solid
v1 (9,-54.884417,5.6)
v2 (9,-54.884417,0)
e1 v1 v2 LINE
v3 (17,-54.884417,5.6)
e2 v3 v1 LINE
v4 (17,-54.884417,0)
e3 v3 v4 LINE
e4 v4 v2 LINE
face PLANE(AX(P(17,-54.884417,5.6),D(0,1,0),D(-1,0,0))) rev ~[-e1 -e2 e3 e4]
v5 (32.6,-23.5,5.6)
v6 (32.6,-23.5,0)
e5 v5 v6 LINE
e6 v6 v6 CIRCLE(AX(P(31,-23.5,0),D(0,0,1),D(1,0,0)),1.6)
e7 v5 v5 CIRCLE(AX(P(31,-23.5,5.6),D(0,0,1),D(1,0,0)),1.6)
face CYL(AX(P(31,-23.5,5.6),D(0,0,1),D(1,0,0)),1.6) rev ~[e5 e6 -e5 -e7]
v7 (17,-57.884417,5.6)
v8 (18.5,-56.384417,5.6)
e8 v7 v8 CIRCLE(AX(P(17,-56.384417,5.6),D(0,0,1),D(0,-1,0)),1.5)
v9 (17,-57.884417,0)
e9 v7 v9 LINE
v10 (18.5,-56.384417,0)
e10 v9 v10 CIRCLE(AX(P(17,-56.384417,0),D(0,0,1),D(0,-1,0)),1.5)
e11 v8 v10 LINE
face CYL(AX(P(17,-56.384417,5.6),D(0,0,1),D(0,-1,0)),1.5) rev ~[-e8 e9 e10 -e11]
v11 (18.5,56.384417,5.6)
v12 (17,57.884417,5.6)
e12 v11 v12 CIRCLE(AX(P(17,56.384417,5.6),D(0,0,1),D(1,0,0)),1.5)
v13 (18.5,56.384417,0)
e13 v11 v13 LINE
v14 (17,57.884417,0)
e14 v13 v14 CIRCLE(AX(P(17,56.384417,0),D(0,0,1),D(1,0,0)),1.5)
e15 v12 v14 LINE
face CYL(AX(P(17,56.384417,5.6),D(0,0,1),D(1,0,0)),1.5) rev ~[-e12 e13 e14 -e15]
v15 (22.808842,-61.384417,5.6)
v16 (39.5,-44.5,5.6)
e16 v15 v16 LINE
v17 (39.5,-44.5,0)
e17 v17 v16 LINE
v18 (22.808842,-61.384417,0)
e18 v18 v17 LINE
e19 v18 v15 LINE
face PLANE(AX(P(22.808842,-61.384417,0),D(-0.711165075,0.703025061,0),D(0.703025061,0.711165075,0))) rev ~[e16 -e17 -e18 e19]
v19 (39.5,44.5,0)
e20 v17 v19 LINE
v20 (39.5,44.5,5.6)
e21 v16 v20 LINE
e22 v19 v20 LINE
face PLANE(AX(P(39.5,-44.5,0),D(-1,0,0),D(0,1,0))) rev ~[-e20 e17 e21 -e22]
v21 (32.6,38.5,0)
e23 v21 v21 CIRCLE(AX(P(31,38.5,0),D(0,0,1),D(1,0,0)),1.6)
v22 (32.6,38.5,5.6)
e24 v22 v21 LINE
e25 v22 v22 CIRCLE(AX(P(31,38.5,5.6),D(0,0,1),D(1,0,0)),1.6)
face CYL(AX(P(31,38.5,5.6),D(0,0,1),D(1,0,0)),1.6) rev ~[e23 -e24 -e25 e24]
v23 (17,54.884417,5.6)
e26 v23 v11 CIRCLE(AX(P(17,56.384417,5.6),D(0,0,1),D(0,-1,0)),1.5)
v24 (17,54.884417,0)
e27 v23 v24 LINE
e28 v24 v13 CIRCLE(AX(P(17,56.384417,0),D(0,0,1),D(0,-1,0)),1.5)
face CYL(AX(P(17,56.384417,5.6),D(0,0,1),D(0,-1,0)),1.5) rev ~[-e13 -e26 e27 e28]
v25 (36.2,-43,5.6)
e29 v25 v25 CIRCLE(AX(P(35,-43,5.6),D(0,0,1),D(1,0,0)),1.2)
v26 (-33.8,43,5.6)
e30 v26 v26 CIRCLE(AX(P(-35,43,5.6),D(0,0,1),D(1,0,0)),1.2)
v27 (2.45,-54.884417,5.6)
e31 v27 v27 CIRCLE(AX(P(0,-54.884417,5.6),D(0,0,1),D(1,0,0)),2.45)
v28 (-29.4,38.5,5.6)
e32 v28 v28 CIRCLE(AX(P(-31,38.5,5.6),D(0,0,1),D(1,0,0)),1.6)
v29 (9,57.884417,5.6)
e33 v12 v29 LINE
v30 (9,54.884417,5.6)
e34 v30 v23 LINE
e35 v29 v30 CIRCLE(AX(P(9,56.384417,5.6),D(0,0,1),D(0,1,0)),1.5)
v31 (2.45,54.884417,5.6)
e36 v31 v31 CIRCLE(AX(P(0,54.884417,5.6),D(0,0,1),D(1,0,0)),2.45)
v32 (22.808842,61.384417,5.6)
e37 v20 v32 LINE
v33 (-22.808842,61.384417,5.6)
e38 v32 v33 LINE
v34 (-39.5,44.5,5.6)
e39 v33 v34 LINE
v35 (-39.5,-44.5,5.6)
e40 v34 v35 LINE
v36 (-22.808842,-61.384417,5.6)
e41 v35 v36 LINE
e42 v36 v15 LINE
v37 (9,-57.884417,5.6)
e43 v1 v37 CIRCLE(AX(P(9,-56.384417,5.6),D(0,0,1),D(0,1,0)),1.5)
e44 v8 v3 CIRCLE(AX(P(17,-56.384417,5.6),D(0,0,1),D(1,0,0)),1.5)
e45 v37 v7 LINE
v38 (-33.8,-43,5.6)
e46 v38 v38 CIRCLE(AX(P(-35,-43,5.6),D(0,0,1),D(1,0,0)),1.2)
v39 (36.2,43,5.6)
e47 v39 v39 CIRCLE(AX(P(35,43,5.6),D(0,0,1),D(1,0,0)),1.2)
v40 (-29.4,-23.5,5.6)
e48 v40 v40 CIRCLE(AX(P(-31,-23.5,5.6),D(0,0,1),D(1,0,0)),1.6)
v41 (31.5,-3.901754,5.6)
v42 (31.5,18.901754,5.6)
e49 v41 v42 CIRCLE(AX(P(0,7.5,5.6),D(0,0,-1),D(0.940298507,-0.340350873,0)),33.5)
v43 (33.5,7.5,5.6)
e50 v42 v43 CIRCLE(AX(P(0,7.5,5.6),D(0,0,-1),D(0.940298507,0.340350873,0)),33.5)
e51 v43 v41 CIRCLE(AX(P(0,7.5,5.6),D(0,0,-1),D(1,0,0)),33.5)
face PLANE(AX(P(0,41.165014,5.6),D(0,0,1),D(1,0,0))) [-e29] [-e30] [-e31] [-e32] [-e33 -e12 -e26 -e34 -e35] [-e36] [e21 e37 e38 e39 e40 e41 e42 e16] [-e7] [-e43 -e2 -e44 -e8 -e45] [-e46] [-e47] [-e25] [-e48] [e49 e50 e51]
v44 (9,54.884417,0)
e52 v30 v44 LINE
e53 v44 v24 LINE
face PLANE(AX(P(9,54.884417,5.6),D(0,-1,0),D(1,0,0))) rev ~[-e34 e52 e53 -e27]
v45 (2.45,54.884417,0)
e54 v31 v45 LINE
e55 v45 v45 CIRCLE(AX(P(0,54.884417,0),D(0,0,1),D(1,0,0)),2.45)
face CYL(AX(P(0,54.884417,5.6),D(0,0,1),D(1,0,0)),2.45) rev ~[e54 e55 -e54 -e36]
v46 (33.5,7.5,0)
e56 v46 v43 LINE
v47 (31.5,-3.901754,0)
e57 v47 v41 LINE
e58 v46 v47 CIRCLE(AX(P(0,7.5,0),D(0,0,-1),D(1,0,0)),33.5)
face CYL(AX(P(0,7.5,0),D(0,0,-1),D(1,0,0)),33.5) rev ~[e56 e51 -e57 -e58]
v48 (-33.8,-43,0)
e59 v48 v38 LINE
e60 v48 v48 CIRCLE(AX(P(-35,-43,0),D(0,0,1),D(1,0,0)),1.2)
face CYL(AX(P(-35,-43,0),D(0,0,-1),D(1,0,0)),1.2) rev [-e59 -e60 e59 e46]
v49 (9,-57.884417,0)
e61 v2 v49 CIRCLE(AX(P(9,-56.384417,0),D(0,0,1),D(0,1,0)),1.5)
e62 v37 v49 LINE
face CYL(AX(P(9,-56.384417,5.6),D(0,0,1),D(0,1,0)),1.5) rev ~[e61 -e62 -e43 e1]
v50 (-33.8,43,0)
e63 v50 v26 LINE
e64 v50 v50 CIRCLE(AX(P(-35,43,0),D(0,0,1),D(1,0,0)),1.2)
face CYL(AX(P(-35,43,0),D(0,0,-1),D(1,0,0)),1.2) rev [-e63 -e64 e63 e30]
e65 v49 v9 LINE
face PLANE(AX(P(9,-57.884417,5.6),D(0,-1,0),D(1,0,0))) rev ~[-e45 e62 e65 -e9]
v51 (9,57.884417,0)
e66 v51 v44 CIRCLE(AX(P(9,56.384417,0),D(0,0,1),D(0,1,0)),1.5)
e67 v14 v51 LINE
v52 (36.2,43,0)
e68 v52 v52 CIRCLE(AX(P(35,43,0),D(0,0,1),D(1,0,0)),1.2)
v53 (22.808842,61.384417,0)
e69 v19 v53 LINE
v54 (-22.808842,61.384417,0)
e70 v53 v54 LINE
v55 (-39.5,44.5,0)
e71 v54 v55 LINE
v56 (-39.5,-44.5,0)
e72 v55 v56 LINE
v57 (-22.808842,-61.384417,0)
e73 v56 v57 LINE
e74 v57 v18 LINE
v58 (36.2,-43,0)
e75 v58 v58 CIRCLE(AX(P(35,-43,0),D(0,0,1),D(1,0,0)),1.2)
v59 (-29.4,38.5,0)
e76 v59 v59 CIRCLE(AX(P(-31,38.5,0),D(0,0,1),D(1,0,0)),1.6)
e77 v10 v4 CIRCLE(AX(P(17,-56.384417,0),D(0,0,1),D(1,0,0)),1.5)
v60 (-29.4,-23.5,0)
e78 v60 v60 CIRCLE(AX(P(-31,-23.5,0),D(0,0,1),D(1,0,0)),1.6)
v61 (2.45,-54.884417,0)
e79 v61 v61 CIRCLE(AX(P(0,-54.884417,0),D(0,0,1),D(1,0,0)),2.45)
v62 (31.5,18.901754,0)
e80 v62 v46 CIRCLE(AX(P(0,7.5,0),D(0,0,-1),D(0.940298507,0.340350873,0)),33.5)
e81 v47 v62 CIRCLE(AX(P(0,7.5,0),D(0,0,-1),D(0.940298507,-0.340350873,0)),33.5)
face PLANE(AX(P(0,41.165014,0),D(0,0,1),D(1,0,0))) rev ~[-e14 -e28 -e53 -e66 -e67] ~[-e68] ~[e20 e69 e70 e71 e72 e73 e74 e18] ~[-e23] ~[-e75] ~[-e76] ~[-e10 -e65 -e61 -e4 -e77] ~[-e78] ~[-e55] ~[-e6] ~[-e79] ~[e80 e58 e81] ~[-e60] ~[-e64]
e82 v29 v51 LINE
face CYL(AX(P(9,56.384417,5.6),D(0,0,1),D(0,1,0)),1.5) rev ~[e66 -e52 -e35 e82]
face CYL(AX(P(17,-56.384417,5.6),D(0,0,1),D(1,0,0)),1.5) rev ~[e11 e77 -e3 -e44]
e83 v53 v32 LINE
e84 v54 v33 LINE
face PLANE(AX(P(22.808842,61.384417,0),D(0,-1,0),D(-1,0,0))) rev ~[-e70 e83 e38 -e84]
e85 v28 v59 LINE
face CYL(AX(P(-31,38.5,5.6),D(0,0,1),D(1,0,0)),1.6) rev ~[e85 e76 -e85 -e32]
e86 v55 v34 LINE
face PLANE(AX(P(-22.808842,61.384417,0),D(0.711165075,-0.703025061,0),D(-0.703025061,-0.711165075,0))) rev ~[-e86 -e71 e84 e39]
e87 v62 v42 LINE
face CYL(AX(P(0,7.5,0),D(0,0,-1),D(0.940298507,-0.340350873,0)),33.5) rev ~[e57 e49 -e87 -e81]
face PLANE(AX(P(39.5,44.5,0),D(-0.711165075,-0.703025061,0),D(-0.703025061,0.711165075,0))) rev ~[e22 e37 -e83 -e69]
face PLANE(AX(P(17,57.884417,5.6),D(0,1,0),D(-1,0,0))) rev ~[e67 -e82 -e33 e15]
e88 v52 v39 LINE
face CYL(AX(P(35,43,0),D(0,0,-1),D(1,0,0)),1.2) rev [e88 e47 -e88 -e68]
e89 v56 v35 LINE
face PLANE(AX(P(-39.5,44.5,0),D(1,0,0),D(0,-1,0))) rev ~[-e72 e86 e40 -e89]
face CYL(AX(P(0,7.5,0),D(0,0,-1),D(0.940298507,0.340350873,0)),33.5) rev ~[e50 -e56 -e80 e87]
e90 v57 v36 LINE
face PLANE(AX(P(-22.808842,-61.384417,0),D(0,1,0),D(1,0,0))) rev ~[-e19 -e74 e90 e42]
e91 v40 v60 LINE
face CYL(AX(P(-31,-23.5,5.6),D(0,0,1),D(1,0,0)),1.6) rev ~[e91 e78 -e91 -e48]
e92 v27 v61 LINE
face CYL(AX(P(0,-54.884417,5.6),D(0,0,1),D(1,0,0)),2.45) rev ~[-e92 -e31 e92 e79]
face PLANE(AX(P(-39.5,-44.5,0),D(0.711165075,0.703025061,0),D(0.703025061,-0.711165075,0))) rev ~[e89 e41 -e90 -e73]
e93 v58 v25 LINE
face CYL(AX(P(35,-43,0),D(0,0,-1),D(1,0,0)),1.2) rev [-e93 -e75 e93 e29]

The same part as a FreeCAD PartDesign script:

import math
import FreeCAD as App
import Part
import Sketcher
from FreeCAD import Vector
Q = App.Units.Quantity


def add_polygon(sketch, points):
    """Adds a closed chain of lines whose ends are joined by coincident constraints."""
    first, n = sketch.GeometryCount, len(points)
    for a, b in zip(points, points[1:] + points[:1]):
        sketch.addGeometry(Part.LineSegment(App.Vector(*a, 0), App.Vector(*b, 0)), False)
    for i in range(n):
        sketch.addConstraint(Sketcher.Constraint("Coincident", first + i, 2, first + (i + 1) % n, 1))

doc = App.newDocument("Part")
params = doc.addObject("Spreadsheet::Sheet", "Params")
for row, (alias, value) in enumerate([
    ("sketch1_diameter", "2.4 mm"),
    ("sketch1_diameter2", "4.1 mm"),
    ("sketch1_radius", "33.5 mm"),
    ("sketch1_height", "89 mm"),
    ("pad1_length", "5.6 mm"),
    ("sketch2_diameter", "3.2 mm"),
    ("sketch2_diameter2", "4.9 mm"),
    ("sketch2_radius", "1.5 mm"),
    ("sketch2_width", "8 mm"),
    ("pocket1_length", "25 mm"),
], start=1):
    params.set(f"A{row}", alias)
    params.set(f"B{row}", "=" + value)
    params.setAlias(f"B{row}", alias)

body = doc.addObject("PartDesign::Body", "Body")

# Sketch on XY plane
sketch1 = doc.addObject("Sketcher::SketchObject", "Sketch")
body.addObject(sketch1)
sketch1.AttachmentSupport = (doc.XY_Plane, [""])
sketch1.MapMode = "FlatFace"
add_polygon(sketch1, [(39.5, 44.5), (22.8, 61.4), (-22.8, 61.4), (-39.5, 44.5), (-39.5, -44.5), (-22.8, -61.4), (22.8, -61.4), (39.5, -44.5)])  # lines 0-7
sketch1.addGeometry(Part.ArcOfCircle(Part.Circle(Vector(0, 7.5, 0), Vector(0, 0, 1), 33.5), math.radians(20), math.radians(340)), False)  # 8
sketch1.addGeometry(Part.ArcOfCircle(Part.Circle(Vector(0, 7.5, 0), Vector(0, 0, 1), 33.5), math.radians(0), math.radians(19.9)), False)  # 9
sketch1.addGeometry(Part.ArcOfCircle(Part.Circle(Vector(0, 7.5, 0), Vector(0, 0, 1), 33.5), math.radians(-19.9), math.radians(0)), False)  # 10
sketch1.addGeometry(Part.Circle(Vector(-35, 43, 0), Vector(0, 0, 1), 1.2), False)  # 11
sketch1.addGeometry(Part.Circle(Vector(35, 43, 0), Vector(0, 0, 1), 1.2), False)  # 12
sketch1.addGeometry(Part.Circle(Vector(0, 54.9, 0), Vector(0, 0, 1), 2), False)  # 13
sketch1.addGeometry(Part.Circle(Vector(-35, -43, 0), Vector(0, 0, 1), 1.2), False)  # 14
sketch1.addGeometry(Part.Circle(Vector(35, -43, 0), Vector(0, 0, 1), 1.2), False)  # 15
sketch1.addGeometry(Part.Circle(Vector(0, -54.9, 0), Vector(0, 0, 1), 2), False)  # 16
sketch1.addConstraint([
    Sketcher.Constraint("Tangent", 8, 1, 9, 2),
    Sketcher.Constraint("Tangent", 9, 1, 10, 2),
    Sketcher.Constraint("Tangent", 10, 1, 8, 2),
    Sketcher.Constraint("Horizontal", 1),
    Sketcher.Constraint("Vertical", 3),
    Sketcher.Constraint("Horizontal", 5),
    Sketcher.Constraint("Vertical", 7),
    Sketcher.Constraint("Equal", 11, 12),
    Sketcher.Constraint("Equal", 12, 14),
    Sketcher.Constraint("Equal", 14, 15),
    Sketcher.Constraint("Equal", 13, 16),
    Sketcher.Constraint("Symmetric", 12, 3, 14, 3, -1, 1),
    Sketcher.Constraint("Symmetric", 11, 3, 15, 3, -1, 1),
    Sketcher.Constraint("Symmetric", 13, 3, 16, 3, -1, 1),
    Sketcher.Constraint("Symmetric", 0, 2, 4, 2, -1, 1),
    Sketcher.Constraint("Symmetric", 2, 2, 6, 2, -1, 1),
    Sketcher.Constraint("Symmetric", 11, 3, 12, 3, -2),
    Sketcher.Constraint("PointOnObject", 8, 3, -2),
    Sketcher.Constraint("PointOnObject", 13, 3, -2),
    Sketcher.Constraint("Parallel", 0, 4),
    Sketcher.Constraint("Parallel", 2, 6),
    Sketcher.Constraint("Horizontal", 3, 2, 6, 2),
    Sketcher.Constraint("Horizontal", 10, 3, 9, 1),
    Sketcher.Constraint("Vertical", 1, 2, 4, 2),
    Sketcher.Constraint("Vertical", 8, 1, 10, 1),
    Sketcher.Constraint("Diameter", 11, Q("2.4 mm")),
    Sketcher.Constraint("Diameter", 13, Q("4.1 mm")),
    Sketcher.Constraint("Radius", 8, Q("33.5 mm")),
    Sketcher.Constraint("DistanceY", 3, 2, 3, 1, Q("89 mm")),
    Sketcher.Constraint("DistanceX", 11, 3, -1, 1, Q("35 mm")),
    Sketcher.Constraint("DistanceY", -1, 1, 11, 3, Q("43 mm")),
    Sketcher.Constraint("DistanceY", 8, 3, 2, 2, Q("37 mm")),
    Sketcher.Constraint("DistanceX", 8, 1, 7, 2, Q("8 mm")),
    Sketcher.Constraint("DistanceX", 8, 1, 9, 1, Q("2 mm")),
    Sketcher.Constraint("DistanceY", 13, 3, 0, 2, Q("6.5 mm")),
    Sketcher.Constraint("Distance", 0, Q("23.74191 mm")),
    Sketcher.Constraint("DistanceX", 1, 2, 1, 1, Q("45.617685 mm")),
])
sketch1.setExpression("Constraints[33]", "Params.sketch1_diameter")
sketch1.setExpression("Constraints[34]", "Params.sketch1_diameter2")
sketch1.setExpression("Constraints[35]", "Params.sketch1_radius")
sketch1.setExpression("Constraints[36]", "Params.sketch1_height")
pad1 = doc.addObject("PartDesign::Pad", "Pad")
body.addObject(pad1)
pad1.Profile = sketch1
pad1.setExpression("Length", "Params.pad1_length")

# Sketch on XY plane
sketch2 = doc.addObject("Sketcher::SketchObject", "Sketch001")
body.addObject(sketch2)
sketch2.AttachmentSupport = (doc.XY_Plane, [""])
sketch2.MapMode = "FlatFace"
sketch2.AttachmentOffset = App.Placement(Vector(0, 0, 5.6), App.Rotation())
sketch2.addGeometry([
    Part.Circle(Vector(-31, 38.5, 0), Vector(0, 0, 1), 1.6),  # 0
    Part.Circle(Vector(31, 38.5, 0), Vector(0, 0, 1), 1.6),  # 1
    Part.Circle(Vector(-31, -23.5, 0), Vector(0, 0, 1), 1.6),  # 2
    Part.Circle(Vector(31, -23.5, 0), Vector(0, 0, 1), 1.6),  # 3
    Part.Circle(Vector(0, 54.9, 0), Vector(0, 0, 1), 2.5),  # 4
    Part.Circle(Vector(0, -54.9, 0), Vector(0, 0, 1), 2.5),  # 5
    Part.LineSegment(Vector(9, 54.9, 0), Vector(17, 54.9, 0)),  # 6
    Part.ArcOfCircle(Part.Circle(Vector(17, 56.4, 0), Vector(0, 0, 1), 1.5), math.radians(-90), math.radians(0)),  # 7
    Part.ArcOfCircle(Part.Circle(Vector(17, 56.4, 0), Vector(0, 0, 1), 1.5), math.radians(0), math.radians(90)),  # 8
    Part.LineSegment(Vector(17, 57.9, 0), Vector(9, 57.9, 0)),  # 9
    Part.ArcOfCircle(Part.Circle(Vector(9, 56.4, 0), Vector(0, 0, 1), 1.5), math.radians(90), math.radians(270)),  # 10
    Part.ArcOfCircle(Part.Circle(Vector(9, -56.4, 0), Vector(0, 0, 1), 1.5), math.radians(90), math.radians(270)),  # 11
    Part.LineSegment(Vector(9, -57.9, 0), Vector(17, -57.9, 0)),  # 12
    Part.ArcOfCircle(Part.Circle(Vector(17, -56.4, 0), Vector(0, 0, 1), 1.5), math.radians(-90), math.radians(0)),  # 13
    Part.ArcOfCircle(Part.Circle(Vector(17, -56.4, 0), Vector(0, 0, 1), 1.5), math.radians(0), math.radians(90)),  # 14
    Part.LineSegment(Vector(17, -54.9, 0), Vector(9, -54.9, 0)),  # 15
], False)
sketch2.addConstraint([
    Sketcher.Constraint("Tangent", 6, 2, 7, 1),
    Sketcher.Constraint("Tangent", 7, 2, 8, 1),
    Sketcher.Constraint("Tangent", 8, 2, 9, 1),
    Sketcher.Constraint("Tangent", 9, 2, 10, 1),
    Sketcher.Constraint("Tangent", 10, 2, 6, 1),
    Sketcher.Constraint("Tangent", 11, 2, 12, 1),
    Sketcher.Constraint("Tangent", 12, 2, 13, 1),
    Sketcher.Constraint("Tangent", 13, 2, 14, 1),
    Sketcher.Constraint("Tangent", 14, 2, 15, 1),
    Sketcher.Constraint("Tangent", 15, 2, 11, 1),
    Sketcher.Constraint("Horizontal", 6),
    Sketcher.Constraint("Horizontal", 9),
    Sketcher.Constraint("Horizontal", 12),
    Sketcher.Constraint("Horizontal", 15),
    Sketcher.Constraint("Equal", 0, 1),
    Sketcher.Constraint("Equal", 1, 2),
    Sketcher.Constraint("Equal", 2, 3),
    Sketcher.Constraint("Equal", 4, 5),
    Sketcher.Constraint("Equal", 7, 8),
    Sketcher.Constraint("Equal", 10, 11),
    Sketcher.Constraint("Equal", 11, 13),
    Sketcher.Constraint("Symmetric", 4, 3, 5, 3, -1, 1),
    Sketcher.Constraint("Symmetric", 0, 3, 1, 3, -2),
    Sketcher.Constraint("Symmetric", 2, 3, 3, 3, -2),
    Sketcher.Constraint("Symmetric", 10, 3, 11, 3, -1),
    Sketcher.Constraint("Symmetric", 7, 2, 13, 2, -1),
    Sketcher.Constraint("PointOnObject", 4, 3, -2),
    Sketcher.Constraint("Horizontal", 4, 3, 6, 2),
    Sketcher.Constraint("Horizontal", 10, 3, 7, 2),
    Sketcher.Constraint("Vertical", 0, 3, 2, 3),
    Sketcher.Constraint("Diameter", 0, Q("3.2 mm")),
    Sketcher.Constraint("Diameter", 4, Q("4.9 mm")),
    Sketcher.Constraint("Radius", 7, Q("1.5 mm")),
    Sketcher.Constraint("DistanceX", 6, 1, 6, 2, Q("8 mm")),
    Sketcher.Constraint("DistanceX", 0, 3, -1, 1, Q("31 mm")),
    Sketcher.Constraint("DistanceX", -1, 1, 7, 3, Q("17 mm")),
    Sketcher.Constraint("DistanceY", 2, 3, 0, 3, Q("62 mm")),
    Sketcher.Constraint("DistanceY", -1, 1, 0, 3, Q("38.5 mm")),
    Sketcher.Constraint("DistanceY", -1, 1, 4, 3, Q("54.884417 mm")),
])
sketch2.setExpression("Constraints[30]", "Params.sketch2_diameter")
sketch2.setExpression("Constraints[31]", "Params.sketch2_diameter2")
sketch2.setExpression("Constraints[32]", "Params.sketch2_radius")
sketch2.setExpression("Constraints[33]", "Params.sketch2_width")
pocket1 = doc.addObject("PartDesign::Pocket", "Pocket")
body.addObject(pocket1)
pocket1.Profile = sketch2
pocket1.setExpression("Length", "Params.pocket1_length")

doc.recompute()
